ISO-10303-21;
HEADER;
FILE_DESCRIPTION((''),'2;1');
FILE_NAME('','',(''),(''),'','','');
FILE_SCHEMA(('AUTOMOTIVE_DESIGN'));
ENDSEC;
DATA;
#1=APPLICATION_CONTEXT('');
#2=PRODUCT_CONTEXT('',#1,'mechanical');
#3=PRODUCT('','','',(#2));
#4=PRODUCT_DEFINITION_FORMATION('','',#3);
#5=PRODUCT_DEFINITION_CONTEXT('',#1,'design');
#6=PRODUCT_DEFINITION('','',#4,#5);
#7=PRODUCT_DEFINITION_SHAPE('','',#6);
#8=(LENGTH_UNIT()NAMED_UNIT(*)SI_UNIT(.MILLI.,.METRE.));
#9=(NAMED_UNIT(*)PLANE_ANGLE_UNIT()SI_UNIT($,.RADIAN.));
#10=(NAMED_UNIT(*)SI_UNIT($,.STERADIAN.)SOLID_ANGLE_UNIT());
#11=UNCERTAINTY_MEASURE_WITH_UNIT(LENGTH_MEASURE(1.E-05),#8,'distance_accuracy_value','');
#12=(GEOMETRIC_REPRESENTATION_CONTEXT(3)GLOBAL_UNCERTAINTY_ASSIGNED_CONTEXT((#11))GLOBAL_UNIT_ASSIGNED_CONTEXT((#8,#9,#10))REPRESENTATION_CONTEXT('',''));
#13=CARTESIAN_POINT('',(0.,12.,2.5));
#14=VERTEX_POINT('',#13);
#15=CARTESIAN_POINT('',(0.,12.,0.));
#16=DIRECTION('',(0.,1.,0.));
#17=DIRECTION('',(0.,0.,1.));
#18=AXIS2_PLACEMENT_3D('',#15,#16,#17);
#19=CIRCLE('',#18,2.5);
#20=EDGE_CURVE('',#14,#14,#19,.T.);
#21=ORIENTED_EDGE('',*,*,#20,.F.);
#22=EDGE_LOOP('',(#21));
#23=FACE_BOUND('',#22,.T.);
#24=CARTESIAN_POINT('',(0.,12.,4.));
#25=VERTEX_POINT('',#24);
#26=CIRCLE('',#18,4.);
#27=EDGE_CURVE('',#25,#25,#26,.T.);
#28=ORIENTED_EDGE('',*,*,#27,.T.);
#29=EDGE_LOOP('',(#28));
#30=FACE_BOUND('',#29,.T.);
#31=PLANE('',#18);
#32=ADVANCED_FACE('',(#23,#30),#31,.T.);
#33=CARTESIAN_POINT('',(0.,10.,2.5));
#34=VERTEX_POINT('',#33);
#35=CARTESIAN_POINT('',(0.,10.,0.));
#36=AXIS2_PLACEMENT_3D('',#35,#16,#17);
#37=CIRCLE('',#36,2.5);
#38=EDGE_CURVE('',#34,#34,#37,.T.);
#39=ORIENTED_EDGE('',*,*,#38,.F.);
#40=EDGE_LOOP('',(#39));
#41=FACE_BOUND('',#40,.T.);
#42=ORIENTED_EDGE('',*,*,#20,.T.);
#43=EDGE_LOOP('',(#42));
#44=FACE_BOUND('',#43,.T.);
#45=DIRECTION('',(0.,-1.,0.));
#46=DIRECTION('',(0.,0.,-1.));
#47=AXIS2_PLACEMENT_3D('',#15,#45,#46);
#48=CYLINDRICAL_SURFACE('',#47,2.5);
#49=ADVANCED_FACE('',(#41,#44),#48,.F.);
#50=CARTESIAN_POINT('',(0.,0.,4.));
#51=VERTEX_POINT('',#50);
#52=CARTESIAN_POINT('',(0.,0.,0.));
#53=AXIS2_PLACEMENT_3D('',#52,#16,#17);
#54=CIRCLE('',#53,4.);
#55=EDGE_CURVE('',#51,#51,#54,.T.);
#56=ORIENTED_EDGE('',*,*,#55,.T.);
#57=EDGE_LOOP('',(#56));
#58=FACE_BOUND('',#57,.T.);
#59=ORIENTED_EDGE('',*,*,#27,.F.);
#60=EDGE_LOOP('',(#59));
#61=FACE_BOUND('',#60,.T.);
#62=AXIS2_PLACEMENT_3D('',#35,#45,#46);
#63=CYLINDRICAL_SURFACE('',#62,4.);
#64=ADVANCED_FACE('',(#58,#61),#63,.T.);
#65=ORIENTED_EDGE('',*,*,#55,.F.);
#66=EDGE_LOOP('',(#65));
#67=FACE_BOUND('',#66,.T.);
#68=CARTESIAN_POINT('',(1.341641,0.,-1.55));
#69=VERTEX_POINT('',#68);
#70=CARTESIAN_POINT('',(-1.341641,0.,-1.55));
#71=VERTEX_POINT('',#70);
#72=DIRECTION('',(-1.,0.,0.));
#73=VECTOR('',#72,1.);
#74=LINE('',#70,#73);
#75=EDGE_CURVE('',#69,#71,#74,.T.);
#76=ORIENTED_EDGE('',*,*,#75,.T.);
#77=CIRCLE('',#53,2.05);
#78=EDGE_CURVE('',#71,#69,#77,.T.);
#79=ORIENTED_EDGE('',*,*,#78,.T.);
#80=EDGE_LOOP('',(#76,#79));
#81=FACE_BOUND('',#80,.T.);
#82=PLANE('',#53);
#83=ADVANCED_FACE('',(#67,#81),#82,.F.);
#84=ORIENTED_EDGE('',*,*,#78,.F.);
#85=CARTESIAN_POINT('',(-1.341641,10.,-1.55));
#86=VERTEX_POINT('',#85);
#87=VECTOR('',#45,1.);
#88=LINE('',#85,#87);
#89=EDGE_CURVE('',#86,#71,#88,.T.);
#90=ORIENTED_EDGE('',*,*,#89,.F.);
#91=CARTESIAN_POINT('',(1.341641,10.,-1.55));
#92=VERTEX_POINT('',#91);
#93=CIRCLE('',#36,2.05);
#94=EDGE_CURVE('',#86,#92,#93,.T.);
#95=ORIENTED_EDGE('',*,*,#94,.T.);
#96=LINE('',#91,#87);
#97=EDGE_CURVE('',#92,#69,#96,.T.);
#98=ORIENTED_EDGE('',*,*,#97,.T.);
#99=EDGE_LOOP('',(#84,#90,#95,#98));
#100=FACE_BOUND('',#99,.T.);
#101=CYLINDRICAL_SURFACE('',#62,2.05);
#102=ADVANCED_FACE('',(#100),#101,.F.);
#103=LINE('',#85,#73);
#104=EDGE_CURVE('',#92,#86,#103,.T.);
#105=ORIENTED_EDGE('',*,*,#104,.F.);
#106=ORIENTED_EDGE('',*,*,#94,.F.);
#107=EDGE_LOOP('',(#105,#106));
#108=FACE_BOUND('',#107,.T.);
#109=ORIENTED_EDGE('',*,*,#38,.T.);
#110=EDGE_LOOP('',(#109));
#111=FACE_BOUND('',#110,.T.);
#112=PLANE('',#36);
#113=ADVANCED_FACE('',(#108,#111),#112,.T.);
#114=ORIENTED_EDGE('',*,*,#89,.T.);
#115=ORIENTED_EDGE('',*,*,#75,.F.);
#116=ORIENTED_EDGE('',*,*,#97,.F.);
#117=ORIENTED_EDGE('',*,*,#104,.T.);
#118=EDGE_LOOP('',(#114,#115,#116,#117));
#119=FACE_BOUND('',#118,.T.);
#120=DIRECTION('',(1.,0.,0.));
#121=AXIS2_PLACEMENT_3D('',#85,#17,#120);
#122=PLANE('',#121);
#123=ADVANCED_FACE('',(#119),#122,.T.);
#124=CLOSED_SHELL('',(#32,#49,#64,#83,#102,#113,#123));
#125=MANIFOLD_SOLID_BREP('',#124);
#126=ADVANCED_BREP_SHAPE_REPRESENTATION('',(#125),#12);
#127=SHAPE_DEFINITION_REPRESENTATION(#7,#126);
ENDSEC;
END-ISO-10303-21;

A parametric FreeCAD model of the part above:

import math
import FreeCAD as App
import Part
import Sketcher

doc = App.newDocument("Part")
body = doc.addObject("PartDesign::Body", "Body")

sketch1 = body.newObject("Sketcher::SketchObject", "Sketch")
sketch1.AttachmentSupport = (doc.getObject("XZ_Plane"), [""])
sketch1.MapMode = "FlatFace"
sketch1.addGeometry([
    Part.Circle(App.Vector(0, 0, 0), App.Vector(0, 0, 1), 4),
    Part.ArcOfCircle(Part.Circle(App.Vector(0, 0, 0), App.Vector(0, 0, 1), 2), math.radians(-49), math.radians(229)),
    Part.LineSegment(App.Vector(-1.3, -1.6, 0), App.Vector(1.3, -1.6, 0)),
], False)
sketch1.addConstraint([
    Sketcher.Constraint("Coincident", 1, 1, 2, 2),
    Sketcher.Constraint("Coincident", 2, 1, 1, 2),
    Sketcher.Constraint("Horizontal", 2),
    Sketcher.Constraint("Coincident", 0, 3, -1, 1),
    Sketcher.Constraint("Coincident", 1, 3, -1, 1),
    Sketcher.Constraint("Diameter", 0, 8.0),
    Sketcher.Constraint("Radius", 1, 2.05),
    Sketcher.Constraint("DistanceY", 1, 1, -1, 1, 1.55),
])
pad1 = body.newObject("PartDesign::Pad", "Pad")
pad1.Profile = sketch1
pad1.Length = 10
pad1.Reversed = True

sketch2 = body.newObject("Sketcher::SketchObject", "Sketch001")
sketch2.AttachmentSupport = (doc.getObject("XZ_Plane"), [""])
sketch2.MapMode = "FlatFace"
sketch2.AttachmentOffset = App.Placement(App.Vector(0, 0, -10), App.Rotation())
sketch2.addGeometry([
    Part.Circle(App.Vector(0, 0, 0), App.Vector(0, 0, 1), 4),
    Part.Circle(App.Vector(0, 0, 0), App.Vector(0, 0, 1), 2.5),
], False)
sketch2.addConstraint([
    Sketcher.Constraint("Coincident", 0, 3, -1, 1),
    Sketcher.Constraint("Coincident", 1, 3, -1, 1),
    Sketcher.Constraint("Diameter", 0, 8.0),
    Sketcher.Constraint("Diameter", 1, 5.0),
])
pad2 = body.newObject("PartDesign::Pad", "Pad001")
pad2.Profile = sketch2
pad2.Length = 2
pad2.Reversed = True

doc.recompute()
